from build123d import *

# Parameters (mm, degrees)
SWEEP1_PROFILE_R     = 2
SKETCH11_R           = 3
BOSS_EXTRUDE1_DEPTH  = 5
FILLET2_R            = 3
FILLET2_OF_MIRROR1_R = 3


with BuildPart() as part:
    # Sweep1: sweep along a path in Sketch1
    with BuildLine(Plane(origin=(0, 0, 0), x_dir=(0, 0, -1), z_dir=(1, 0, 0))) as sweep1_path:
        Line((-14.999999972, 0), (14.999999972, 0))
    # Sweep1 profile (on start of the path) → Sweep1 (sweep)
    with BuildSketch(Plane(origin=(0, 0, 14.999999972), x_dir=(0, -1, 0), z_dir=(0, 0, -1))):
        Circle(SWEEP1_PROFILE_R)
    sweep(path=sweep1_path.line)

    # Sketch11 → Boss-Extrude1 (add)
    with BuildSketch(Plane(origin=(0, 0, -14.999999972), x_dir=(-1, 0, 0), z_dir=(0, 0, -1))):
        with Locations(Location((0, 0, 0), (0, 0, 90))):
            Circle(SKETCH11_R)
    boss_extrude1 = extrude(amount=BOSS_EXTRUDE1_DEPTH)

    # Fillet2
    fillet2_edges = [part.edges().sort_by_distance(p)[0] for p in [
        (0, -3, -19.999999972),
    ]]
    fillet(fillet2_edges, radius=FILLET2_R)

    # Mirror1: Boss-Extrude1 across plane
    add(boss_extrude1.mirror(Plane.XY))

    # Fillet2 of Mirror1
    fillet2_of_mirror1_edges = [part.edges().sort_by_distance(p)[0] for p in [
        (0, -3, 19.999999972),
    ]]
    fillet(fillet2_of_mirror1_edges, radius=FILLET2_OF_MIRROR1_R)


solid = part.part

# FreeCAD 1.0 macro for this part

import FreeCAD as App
import Part
import Sketcher
from FreeCAD import Vector


def edges_at(feature, points):
    """Names of the edges that pass closest to the given points."""
    edges = feature.Shape.Edges
    near = lambda p: min(range(len(edges)), key=lambda i: edges[i].distToShape(Part.Vertex(*p))[0])
    return sorted({f"Edge{near(p) + 1}" for p in points})

doc = App.newDocument("Part")
body = doc.addObject("PartDesign::Body", "Body")

# Sketch on XY plane
sketch1 = body.newObject("Sketcher::SketchObject", "Sketch")
sketch1.AttachmentSupport = (doc.getObject("XY_Plane"), [""])
sketch1.MapMode = "FlatFace"
sketch1.AttachmentOffset = App.Placement(Vector(0, 0, 15), App.Rotation())
sketch1.addGeometry(Part.Circle(Vector(0, 0, 0), Vector(0, 0, 1), 2), False)
sketch1.addConstraint(Sketcher.Constraint("Coincident", 0, 3, -1, 1))
sketch1.addConstraint(Sketcher.Constraint("Diameter", 0, 4.0))

# Sketch on XZ plane
sketch2 = body.newObject("Sketcher::SketchObject", "Sketch001")
sketch2.AttachmentSupport = (doc.getObject("XZ_Plane"), [""])
sketch2.MapMode = "FlatFace"
sketch2.addGeometry(Part.LineSegment(Vector(0, 15, 0), Vector(0, -15, 0)), False)
sketch2.addConstraint(Sketcher.Constraint("Vertical", 0))
sketch2.addConstraint(Sketcher.Constraint("Symmetric", 0, 1, 0, 2, -1, 1))
sketch2.addConstraint(Sketcher.Constraint("DistanceY", 0, 2, 0, 1, 30.0))
doc.recompute()

additivepipe = body.newObject("PartDesign::AdditivePipe", "AdditivePipe")
additivepipe.Profile = sketch1
additivepipe.Spine = (sketch2, ["Edge1"])

# Sketch on XY plane
sketch3 = body.newObject("Sketcher::SketchObject", "Sketch002")
sketch3.AttachmentSupport = (doc.getObject("XY_Plane"), [""])
sketch3.MapMode = "FlatFace"
sketch3.AttachmentOffset = App.Placement(Vector(0, 0, -15), App.Rotation())
sketch3.addGeometry(Part.Circle(Vector(0, 0, 0), Vector(0, 0, 1), 3), False)
sketch3.addConstraint(Sketcher.Constraint("Coincident", 0, 3, -1, 1))
sketch3.addConstraint(Sketcher.Constraint("Diameter", 0, 6.0))
pad1 = body.newObject("PartDesign::Pad", "Pad")
pad1.Profile = sketch3
pad1.Length = 5
pad1.Reversed = True
doc.recompute()

fillet = body.newObject("PartDesign::Fillet", "Fillet")
fillet.Base = (pad1, edges_at(pad1, [(0, -3, -20)]))
fillet.Radius = 3
doc.recompute()

mirrored = body.newObject("PartDesign::Mirrored", "Mirrored")
mirrored.Originals = [pad1]
mirrored.MirrorPlane = (doc.getObject("XY_Plane"), [""])
body.Tip = mirrored
doc.recompute()

fillet2 = body.newObject("PartDesign::Fillet", "Fillet001")
fillet2.Base = (mirrored, edges_at(mirrored, [(0, -3, 20)]))
fillet2.Radius = 3

doc.recompute()
